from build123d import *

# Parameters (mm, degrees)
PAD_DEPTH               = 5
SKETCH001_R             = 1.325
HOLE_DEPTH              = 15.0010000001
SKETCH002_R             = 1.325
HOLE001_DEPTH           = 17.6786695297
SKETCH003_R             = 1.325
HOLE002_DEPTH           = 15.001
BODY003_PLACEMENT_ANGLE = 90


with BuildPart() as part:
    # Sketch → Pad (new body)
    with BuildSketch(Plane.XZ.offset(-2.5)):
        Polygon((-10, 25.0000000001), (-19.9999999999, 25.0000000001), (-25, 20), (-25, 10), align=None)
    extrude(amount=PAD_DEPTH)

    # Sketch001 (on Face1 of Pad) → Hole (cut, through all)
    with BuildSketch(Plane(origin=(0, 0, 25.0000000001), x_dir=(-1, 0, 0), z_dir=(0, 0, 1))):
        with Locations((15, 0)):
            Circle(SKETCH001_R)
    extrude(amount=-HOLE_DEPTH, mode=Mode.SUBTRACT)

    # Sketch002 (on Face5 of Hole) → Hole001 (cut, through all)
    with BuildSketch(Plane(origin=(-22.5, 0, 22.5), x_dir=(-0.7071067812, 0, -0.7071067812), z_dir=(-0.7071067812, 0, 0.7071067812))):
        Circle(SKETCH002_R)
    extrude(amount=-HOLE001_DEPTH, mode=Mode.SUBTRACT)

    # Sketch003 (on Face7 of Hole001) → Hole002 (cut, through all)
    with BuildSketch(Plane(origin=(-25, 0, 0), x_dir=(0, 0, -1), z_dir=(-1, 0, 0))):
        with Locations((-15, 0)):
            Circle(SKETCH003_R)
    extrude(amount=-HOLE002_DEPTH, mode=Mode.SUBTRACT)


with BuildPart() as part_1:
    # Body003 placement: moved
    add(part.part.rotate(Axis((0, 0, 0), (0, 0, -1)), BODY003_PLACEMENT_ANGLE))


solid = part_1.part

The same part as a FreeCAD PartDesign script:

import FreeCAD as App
import Part
import Sketcher

V = App.Vector


def add_polygon(sketch, points):
    """Adds a closed chain of lines whose ends are joined by coincident constraints."""
    first, n = sketch.GeometryCount, len(points)
    for a, b in zip(points, points[1:] + points[:1]):
        sketch.addGeometry(Part.LineSegment(App.Vector(*a, 0), App.Vector(*b, 0)), False)
    for i in range(n):
        sketch.addConstraint(Sketcher.Constraint("Coincident", first + i, 2, first + (i + 1) % n, 1))

doc = App.newDocument("Part")
params = doc.addObject("Spreadsheet::Sheet", "Params")
for row, (alias, value) in enumerate([
    ("sketch1_width", "10 mm"),
    ("pad1_length", "5 mm"),
    ("sketch2_diameter", "2.65 mm"),
    ("sketch3_diameter", "2.65 mm"),
    ("sketch4_diameter", "2.65 mm"),
], start=1):
    params.set(f"A{row}", alias)
    params.set(f"B{row}", "=" + value)
    params.setAlias(f"B{row}", alias)

body = doc.addObject("PartDesign::Body", "Body")

# Sketch on XZ plane
sketch1 = body.newObject("Sketcher::SketchObject", "Sketch")
sketch1.AttachmentSupport = (doc.getObject("XZ_Plane"), [""])
sketch1.MapMode = "FlatFace"
sketch1.AttachmentOffset = App.Placement(V(0, 0, -2.5), App.Rotation())
add_polygon(sketch1, [(-10, 25), (-20, 25), (-25, 20), (-25, 10)])  # lines 0-3
sketch1.addConstraint([
    Sketcher.Constraint("Horizontal", 0),
    Sketcher.Constraint("Vertical", 2),
    Sketcher.Constraint("Parallel", 1, 3),
    Sketcher.Constraint("Equal", 0, 2),
    Sketcher.Constraint("DistanceX", 0, 2, 0, 1, 10.0),
    Sketcher.Constraint("DistanceX", 0, 2, -1, 1, 20.0),
    Sketcher.Constraint("DistanceY", -1, 1, 0, 2, 25.0),
    Sketcher.Constraint("DistanceX", 1, 2, -1, 1, 25.0),
])
sketch1.setExpression("Constraints[8]", "Params.sketch1_width")
pad1 = body.newObject("PartDesign::Pad", "Pad")
pad1.Profile = sketch1
pad1.setExpression("Length", "Params.pad1_length")

# Sketch on XY plane
sketch2 = body.newObject("Sketcher::SketchObject", "Sketch001")
sketch2.AttachmentSupport = (doc.getObject("XY_Plane"), [""])
sketch2.MapMode = "FlatFace"
sketch2.AttachmentOffset = App.Placement(V(0, 0, 25), App.Rotation())
sketch2.addGeometry(Part.Circle(V(-15, 0, 0), V(0, 0, 1), 1.325), False)
sketch2.addConstraint([
    Sketcher.Constraint("PointOnObject", 0, 3, -1),
    Sketcher.Constraint("Diameter", 0, 2.65),
    Sketcher.Constraint("DistanceX", 0, 3, -1, 1, 15.0),
])
sketch2.setExpression("Constraints[1]", "Params.sketch2_diameter")
pocket1 = body.newObject("PartDesign::Pocket", "Pocket")
pocket1.Profile = sketch2
pocket1.Type = "ThroughAll"

# Sketch on an angled plane
sketch3 = body.newObject("Sketcher::SketchObject", "Sketch002")
sketch3.Placement = App.Placement(V(-22.5, 0, 22.5), App.Rotation(V(-0.707106781, 0, -0.707106781), V(0, -0.999999999, 0), V(-0.707106781, 0, 0.707106781), "ZXY"))
sketch3.addGeometry(Part.Circle(V(0, 0, 0), V(0, 0, 1), 1.325), False)
sketch3.addConstraint([
    Sketcher.Constraint("Coincident", 0, 3, -1, 1),
    Sketcher.Constraint("Diameter", 0, 2.65),
])
sketch3.setExpression("Constraints[1]", "Params.sketch3_diameter")
pocket2 = body.newObject("PartDesign::Pocket", "Pocket001")
pocket2.Profile = sketch3
pocket2.Type = "ThroughAll"

# Sketch on YZ plane
sketch4 = body.newObject("Sketcher::SketchObject", "Sketch003")
sketch4.AttachmentSupport = (doc.getObject("YZ_Plane"), [""])
sketch4.MapMode = "FlatFace"
sketch4.AttachmentOffset = App.Placement(V(0, 0, -25), App.Rotation())
sketch4.addGeometry(Part.Circle(V(0, 15, 0), V(0, 0, 1), 1.325), False)
sketch4.addConstraint([
    Sketcher.Constraint("PointOnObject", 0, 3, -2),
    Sketcher.Constraint("Diameter", 0, 2.65),
    Sketcher.Constraint("DistanceY", -1, 1, 0, 3, 15.0),
])
sketch4.setExpression("Constraints[1]", "Params.sketch4_diameter")
pocket3 = body.newObject("PartDesign::Pocket", "Pocket002")
pocket3.Profile = sketch4
pocket3.Type = "ThroughAll"
pocket3.Reversed = True
body2 = doc.addObject("PartDesign::Body", "Body001")
doc.recompute()

body.Placement = App.Placement(V(0, 0, 0), App.Rotation(V(0, 0, -1), 90))
boolean = body2.newObject("PartDesign::Boolean", "Boolean")
boolean.Type = "Fuse"
boolean.addObjects([body])

doc.recompute()
